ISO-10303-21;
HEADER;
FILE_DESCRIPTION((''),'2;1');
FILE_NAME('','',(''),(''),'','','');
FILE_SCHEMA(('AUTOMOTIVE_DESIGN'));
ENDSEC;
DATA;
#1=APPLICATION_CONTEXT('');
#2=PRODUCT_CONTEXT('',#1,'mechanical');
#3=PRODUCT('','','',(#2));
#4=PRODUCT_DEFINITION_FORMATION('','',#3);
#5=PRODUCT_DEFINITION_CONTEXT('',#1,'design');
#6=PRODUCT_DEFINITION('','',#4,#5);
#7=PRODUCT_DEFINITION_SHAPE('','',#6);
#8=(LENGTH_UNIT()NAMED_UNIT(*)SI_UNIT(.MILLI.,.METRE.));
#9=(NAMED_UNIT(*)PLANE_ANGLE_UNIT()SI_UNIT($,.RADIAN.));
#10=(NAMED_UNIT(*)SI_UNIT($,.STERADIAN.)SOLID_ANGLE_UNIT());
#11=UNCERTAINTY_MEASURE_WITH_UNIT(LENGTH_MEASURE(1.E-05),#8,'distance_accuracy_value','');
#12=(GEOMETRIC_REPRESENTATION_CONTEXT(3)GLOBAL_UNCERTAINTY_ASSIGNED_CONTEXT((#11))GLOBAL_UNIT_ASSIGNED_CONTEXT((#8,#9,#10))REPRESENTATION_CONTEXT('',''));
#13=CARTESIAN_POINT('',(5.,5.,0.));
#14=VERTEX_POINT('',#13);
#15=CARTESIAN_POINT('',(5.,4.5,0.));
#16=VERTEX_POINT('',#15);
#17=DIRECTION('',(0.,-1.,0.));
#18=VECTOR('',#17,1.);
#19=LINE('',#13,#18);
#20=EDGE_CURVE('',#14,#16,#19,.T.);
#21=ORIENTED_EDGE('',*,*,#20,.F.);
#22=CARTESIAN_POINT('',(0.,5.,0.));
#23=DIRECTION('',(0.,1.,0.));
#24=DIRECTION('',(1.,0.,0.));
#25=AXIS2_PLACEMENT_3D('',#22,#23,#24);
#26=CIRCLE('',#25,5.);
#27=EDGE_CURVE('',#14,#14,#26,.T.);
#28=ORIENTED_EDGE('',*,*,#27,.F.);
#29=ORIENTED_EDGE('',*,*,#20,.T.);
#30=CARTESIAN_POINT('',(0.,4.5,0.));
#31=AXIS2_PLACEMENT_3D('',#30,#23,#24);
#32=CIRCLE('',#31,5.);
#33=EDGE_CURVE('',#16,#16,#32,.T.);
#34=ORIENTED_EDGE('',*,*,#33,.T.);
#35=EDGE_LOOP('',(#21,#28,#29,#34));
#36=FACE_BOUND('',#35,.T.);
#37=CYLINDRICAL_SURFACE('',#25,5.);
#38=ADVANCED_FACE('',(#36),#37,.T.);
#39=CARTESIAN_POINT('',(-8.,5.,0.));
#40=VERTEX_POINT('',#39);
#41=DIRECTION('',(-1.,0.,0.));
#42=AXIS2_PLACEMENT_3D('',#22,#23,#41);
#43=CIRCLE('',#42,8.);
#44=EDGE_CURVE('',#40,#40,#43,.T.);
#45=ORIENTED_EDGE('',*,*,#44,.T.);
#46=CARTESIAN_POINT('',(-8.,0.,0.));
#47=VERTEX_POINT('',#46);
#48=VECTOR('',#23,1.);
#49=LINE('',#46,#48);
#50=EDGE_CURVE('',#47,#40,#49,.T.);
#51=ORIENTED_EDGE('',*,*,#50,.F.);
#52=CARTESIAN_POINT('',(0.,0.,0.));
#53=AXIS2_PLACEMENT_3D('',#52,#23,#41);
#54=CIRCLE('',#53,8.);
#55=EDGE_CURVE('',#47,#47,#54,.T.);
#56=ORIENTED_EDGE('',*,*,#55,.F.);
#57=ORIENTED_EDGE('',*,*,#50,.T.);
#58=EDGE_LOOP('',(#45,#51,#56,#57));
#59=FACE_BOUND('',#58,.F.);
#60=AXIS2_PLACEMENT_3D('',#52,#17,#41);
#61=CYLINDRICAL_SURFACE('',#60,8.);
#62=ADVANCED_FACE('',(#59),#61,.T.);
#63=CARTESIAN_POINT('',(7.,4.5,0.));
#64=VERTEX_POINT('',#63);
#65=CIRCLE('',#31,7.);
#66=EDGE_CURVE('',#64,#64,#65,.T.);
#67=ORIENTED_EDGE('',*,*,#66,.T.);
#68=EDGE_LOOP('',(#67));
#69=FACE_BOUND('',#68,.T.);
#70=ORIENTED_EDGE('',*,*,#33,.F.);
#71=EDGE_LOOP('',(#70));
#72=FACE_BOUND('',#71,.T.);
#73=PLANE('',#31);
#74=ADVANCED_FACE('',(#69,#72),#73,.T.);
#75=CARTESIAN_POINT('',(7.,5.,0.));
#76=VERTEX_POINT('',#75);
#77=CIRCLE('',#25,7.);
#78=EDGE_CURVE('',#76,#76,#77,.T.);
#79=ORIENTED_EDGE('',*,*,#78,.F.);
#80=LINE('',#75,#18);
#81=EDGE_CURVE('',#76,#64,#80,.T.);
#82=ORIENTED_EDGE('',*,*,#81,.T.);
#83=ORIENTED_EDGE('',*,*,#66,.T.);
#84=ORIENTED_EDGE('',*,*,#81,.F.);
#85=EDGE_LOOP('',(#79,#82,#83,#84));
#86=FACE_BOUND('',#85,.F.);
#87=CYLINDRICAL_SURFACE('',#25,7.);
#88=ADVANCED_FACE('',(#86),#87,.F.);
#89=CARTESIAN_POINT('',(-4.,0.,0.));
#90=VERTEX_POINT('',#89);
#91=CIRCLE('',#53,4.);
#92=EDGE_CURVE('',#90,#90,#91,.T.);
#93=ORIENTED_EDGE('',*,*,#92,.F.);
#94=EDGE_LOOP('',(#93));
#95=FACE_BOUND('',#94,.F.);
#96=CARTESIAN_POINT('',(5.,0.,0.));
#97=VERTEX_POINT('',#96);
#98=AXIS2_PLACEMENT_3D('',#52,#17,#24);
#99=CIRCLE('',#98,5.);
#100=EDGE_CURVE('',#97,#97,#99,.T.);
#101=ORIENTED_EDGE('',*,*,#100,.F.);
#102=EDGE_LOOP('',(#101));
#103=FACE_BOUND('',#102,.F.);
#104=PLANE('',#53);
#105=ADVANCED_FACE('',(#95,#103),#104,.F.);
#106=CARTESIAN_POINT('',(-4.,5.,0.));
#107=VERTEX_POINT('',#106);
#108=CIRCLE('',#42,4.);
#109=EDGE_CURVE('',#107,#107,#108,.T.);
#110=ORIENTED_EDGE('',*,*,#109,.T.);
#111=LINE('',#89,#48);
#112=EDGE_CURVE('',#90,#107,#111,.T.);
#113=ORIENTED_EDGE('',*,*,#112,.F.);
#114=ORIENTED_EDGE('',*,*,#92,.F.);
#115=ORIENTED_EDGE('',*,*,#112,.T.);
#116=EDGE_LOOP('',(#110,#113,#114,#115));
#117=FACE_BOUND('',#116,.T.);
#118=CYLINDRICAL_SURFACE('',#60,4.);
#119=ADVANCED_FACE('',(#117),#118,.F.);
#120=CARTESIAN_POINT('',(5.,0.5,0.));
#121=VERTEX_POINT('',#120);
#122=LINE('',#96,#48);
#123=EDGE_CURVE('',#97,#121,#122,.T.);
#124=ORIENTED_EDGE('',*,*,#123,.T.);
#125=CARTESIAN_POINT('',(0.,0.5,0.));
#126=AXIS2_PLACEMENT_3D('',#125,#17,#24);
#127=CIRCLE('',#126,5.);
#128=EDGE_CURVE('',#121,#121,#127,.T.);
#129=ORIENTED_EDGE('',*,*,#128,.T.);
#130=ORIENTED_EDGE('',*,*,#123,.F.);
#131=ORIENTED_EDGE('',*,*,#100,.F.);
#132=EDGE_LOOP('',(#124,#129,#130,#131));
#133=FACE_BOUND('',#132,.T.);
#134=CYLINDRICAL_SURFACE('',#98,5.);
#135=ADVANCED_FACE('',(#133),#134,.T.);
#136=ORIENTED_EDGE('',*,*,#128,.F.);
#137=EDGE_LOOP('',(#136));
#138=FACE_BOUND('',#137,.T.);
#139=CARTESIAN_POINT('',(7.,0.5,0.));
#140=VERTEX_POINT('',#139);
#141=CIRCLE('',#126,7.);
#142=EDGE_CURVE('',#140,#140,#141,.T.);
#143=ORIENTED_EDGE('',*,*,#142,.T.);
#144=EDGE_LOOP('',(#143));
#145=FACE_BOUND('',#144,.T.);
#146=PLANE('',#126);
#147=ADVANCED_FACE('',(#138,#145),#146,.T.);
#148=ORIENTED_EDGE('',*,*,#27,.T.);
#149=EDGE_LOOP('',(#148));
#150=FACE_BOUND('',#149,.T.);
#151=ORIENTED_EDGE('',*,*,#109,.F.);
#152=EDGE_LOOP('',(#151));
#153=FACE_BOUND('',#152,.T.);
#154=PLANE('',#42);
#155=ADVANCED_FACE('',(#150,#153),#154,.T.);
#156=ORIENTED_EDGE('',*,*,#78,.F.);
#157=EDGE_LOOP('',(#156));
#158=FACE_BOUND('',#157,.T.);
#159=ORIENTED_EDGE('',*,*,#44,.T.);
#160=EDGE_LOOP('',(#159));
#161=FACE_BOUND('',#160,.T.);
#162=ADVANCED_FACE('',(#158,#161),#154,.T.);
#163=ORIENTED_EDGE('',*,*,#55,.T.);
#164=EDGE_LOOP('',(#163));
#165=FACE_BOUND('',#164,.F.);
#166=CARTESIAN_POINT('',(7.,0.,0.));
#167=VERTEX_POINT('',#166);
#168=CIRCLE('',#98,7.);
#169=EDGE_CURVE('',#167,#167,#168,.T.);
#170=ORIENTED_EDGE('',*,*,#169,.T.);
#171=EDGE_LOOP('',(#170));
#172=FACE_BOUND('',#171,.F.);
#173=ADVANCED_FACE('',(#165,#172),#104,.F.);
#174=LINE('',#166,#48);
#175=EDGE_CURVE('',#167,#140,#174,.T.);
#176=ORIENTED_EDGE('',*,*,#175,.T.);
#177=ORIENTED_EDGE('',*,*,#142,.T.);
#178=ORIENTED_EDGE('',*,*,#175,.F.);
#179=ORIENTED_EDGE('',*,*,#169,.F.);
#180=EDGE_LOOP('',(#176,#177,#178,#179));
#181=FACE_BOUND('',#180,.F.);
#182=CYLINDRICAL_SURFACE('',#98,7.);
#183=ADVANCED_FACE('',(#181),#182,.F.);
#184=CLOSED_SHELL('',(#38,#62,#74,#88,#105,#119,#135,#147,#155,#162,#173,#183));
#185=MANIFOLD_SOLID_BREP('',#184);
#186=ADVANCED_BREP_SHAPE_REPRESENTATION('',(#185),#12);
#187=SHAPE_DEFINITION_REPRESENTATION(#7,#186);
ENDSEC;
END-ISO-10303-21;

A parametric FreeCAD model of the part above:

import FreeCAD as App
import Part
import Sketcher
from FreeCAD import Vector
Q = App.Units.Quantity

doc = App.newDocument("Part")
body = doc.addObject("PartDesign::Body", "Body")

# Sketch on XZ plane
sketch1 = body.newObject("Sketcher::SketchObject", "Sketch")
sketch1.AttachmentSupport = (doc.getObject("XZ_Plane"), [""])
sketch1.MapMode = "FlatFace"
sketch1.addGeometry([
    Part.Circle(Vector(0, 0, 0), Vector(0, 0, 1), 8),
    Part.Circle(Vector(0, 0, 0), Vector(0, 0, 1), 4),
], False)
sketch1.addConstraint([
    Sketcher.Constraint("Coincident", 0, 3, -1, 1),
    Sketcher.Constraint("Coincident", 1, 3, -1, 1),
    Sketcher.Constraint("Diameter", 0, Q("16 mm")),
    Sketcher.Constraint("Diameter", 1, Q("8 mm")),
])
pad1 = body.newObject("PartDesign::Pad", "Pad")
pad1.Profile = sketch1
pad1.Length = 5
pad1.Reversed = True

# Sketch on XZ plane
sketch2 = body.newObject("Sketcher::SketchObject", "Sketch001")
sketch2.AttachmentSupport = (doc.getObject("XZ_Plane"), [""])
sketch2.MapMode = "FlatFace"
sketch2.AttachmentOffset = App.Placement(Vector(0, 0, -5), App.Rotation())
sketch2.addGeometry([
    Part.Circle(Vector(0, 0, 0), Vector(0, 0, 1), 7),
    Part.Circle(Vector(0, 0, 0), Vector(0, 0, 1), 5),
], False)
sketch2.addConstraint([
    Sketcher.Constraint("Coincident", 0, 3, -1, 1),
    Sketcher.Constraint("Coincident", 1, 3, -1, 1),
    Sketcher.Constraint("Diameter", 0, Q("14 mm")),
    Sketcher.Constraint("Diameter", 1, Q("10 mm")),
])
pocket1 = body.newObject("PartDesign::Pocket", "Pocket")
pocket1.Profile = sketch2
pocket1.Length = 0.5
pocket1.Reversed = True

# Sketch on XZ plane
sketch3 = body.newObject("Sketcher::SketchObject", "Sketch002")
sketch3.AttachmentSupport = (doc.getObject("XZ_Plane"), [""])
sketch3.MapMode = "FlatFace"
sketch3.addGeometry([
    Part.Circle(Vector(0, 0, 0), Vector(0, 0, 1), 7),
    Part.Circle(Vector(0, 0, 0), Vector(0, 0, 1), 5),
], False)
sketch3.addConstraint([
    Sketcher.Constraint("Coincident", 0, 3, -1, 1),
    Sketcher.Constraint("Coincident", 1, 3, -1, 1),
    Sketcher.Constraint("Diameter", 0, Q("14 mm")),
    Sketcher.Constraint("Diameter", 1, Q("10 mm")),
])
pocket2 = body.newObject("PartDesign::Pocket", "Pocket001")
pocket2.Profile = sketch3
pocket2.Length = 0.5

doc.recompute()
